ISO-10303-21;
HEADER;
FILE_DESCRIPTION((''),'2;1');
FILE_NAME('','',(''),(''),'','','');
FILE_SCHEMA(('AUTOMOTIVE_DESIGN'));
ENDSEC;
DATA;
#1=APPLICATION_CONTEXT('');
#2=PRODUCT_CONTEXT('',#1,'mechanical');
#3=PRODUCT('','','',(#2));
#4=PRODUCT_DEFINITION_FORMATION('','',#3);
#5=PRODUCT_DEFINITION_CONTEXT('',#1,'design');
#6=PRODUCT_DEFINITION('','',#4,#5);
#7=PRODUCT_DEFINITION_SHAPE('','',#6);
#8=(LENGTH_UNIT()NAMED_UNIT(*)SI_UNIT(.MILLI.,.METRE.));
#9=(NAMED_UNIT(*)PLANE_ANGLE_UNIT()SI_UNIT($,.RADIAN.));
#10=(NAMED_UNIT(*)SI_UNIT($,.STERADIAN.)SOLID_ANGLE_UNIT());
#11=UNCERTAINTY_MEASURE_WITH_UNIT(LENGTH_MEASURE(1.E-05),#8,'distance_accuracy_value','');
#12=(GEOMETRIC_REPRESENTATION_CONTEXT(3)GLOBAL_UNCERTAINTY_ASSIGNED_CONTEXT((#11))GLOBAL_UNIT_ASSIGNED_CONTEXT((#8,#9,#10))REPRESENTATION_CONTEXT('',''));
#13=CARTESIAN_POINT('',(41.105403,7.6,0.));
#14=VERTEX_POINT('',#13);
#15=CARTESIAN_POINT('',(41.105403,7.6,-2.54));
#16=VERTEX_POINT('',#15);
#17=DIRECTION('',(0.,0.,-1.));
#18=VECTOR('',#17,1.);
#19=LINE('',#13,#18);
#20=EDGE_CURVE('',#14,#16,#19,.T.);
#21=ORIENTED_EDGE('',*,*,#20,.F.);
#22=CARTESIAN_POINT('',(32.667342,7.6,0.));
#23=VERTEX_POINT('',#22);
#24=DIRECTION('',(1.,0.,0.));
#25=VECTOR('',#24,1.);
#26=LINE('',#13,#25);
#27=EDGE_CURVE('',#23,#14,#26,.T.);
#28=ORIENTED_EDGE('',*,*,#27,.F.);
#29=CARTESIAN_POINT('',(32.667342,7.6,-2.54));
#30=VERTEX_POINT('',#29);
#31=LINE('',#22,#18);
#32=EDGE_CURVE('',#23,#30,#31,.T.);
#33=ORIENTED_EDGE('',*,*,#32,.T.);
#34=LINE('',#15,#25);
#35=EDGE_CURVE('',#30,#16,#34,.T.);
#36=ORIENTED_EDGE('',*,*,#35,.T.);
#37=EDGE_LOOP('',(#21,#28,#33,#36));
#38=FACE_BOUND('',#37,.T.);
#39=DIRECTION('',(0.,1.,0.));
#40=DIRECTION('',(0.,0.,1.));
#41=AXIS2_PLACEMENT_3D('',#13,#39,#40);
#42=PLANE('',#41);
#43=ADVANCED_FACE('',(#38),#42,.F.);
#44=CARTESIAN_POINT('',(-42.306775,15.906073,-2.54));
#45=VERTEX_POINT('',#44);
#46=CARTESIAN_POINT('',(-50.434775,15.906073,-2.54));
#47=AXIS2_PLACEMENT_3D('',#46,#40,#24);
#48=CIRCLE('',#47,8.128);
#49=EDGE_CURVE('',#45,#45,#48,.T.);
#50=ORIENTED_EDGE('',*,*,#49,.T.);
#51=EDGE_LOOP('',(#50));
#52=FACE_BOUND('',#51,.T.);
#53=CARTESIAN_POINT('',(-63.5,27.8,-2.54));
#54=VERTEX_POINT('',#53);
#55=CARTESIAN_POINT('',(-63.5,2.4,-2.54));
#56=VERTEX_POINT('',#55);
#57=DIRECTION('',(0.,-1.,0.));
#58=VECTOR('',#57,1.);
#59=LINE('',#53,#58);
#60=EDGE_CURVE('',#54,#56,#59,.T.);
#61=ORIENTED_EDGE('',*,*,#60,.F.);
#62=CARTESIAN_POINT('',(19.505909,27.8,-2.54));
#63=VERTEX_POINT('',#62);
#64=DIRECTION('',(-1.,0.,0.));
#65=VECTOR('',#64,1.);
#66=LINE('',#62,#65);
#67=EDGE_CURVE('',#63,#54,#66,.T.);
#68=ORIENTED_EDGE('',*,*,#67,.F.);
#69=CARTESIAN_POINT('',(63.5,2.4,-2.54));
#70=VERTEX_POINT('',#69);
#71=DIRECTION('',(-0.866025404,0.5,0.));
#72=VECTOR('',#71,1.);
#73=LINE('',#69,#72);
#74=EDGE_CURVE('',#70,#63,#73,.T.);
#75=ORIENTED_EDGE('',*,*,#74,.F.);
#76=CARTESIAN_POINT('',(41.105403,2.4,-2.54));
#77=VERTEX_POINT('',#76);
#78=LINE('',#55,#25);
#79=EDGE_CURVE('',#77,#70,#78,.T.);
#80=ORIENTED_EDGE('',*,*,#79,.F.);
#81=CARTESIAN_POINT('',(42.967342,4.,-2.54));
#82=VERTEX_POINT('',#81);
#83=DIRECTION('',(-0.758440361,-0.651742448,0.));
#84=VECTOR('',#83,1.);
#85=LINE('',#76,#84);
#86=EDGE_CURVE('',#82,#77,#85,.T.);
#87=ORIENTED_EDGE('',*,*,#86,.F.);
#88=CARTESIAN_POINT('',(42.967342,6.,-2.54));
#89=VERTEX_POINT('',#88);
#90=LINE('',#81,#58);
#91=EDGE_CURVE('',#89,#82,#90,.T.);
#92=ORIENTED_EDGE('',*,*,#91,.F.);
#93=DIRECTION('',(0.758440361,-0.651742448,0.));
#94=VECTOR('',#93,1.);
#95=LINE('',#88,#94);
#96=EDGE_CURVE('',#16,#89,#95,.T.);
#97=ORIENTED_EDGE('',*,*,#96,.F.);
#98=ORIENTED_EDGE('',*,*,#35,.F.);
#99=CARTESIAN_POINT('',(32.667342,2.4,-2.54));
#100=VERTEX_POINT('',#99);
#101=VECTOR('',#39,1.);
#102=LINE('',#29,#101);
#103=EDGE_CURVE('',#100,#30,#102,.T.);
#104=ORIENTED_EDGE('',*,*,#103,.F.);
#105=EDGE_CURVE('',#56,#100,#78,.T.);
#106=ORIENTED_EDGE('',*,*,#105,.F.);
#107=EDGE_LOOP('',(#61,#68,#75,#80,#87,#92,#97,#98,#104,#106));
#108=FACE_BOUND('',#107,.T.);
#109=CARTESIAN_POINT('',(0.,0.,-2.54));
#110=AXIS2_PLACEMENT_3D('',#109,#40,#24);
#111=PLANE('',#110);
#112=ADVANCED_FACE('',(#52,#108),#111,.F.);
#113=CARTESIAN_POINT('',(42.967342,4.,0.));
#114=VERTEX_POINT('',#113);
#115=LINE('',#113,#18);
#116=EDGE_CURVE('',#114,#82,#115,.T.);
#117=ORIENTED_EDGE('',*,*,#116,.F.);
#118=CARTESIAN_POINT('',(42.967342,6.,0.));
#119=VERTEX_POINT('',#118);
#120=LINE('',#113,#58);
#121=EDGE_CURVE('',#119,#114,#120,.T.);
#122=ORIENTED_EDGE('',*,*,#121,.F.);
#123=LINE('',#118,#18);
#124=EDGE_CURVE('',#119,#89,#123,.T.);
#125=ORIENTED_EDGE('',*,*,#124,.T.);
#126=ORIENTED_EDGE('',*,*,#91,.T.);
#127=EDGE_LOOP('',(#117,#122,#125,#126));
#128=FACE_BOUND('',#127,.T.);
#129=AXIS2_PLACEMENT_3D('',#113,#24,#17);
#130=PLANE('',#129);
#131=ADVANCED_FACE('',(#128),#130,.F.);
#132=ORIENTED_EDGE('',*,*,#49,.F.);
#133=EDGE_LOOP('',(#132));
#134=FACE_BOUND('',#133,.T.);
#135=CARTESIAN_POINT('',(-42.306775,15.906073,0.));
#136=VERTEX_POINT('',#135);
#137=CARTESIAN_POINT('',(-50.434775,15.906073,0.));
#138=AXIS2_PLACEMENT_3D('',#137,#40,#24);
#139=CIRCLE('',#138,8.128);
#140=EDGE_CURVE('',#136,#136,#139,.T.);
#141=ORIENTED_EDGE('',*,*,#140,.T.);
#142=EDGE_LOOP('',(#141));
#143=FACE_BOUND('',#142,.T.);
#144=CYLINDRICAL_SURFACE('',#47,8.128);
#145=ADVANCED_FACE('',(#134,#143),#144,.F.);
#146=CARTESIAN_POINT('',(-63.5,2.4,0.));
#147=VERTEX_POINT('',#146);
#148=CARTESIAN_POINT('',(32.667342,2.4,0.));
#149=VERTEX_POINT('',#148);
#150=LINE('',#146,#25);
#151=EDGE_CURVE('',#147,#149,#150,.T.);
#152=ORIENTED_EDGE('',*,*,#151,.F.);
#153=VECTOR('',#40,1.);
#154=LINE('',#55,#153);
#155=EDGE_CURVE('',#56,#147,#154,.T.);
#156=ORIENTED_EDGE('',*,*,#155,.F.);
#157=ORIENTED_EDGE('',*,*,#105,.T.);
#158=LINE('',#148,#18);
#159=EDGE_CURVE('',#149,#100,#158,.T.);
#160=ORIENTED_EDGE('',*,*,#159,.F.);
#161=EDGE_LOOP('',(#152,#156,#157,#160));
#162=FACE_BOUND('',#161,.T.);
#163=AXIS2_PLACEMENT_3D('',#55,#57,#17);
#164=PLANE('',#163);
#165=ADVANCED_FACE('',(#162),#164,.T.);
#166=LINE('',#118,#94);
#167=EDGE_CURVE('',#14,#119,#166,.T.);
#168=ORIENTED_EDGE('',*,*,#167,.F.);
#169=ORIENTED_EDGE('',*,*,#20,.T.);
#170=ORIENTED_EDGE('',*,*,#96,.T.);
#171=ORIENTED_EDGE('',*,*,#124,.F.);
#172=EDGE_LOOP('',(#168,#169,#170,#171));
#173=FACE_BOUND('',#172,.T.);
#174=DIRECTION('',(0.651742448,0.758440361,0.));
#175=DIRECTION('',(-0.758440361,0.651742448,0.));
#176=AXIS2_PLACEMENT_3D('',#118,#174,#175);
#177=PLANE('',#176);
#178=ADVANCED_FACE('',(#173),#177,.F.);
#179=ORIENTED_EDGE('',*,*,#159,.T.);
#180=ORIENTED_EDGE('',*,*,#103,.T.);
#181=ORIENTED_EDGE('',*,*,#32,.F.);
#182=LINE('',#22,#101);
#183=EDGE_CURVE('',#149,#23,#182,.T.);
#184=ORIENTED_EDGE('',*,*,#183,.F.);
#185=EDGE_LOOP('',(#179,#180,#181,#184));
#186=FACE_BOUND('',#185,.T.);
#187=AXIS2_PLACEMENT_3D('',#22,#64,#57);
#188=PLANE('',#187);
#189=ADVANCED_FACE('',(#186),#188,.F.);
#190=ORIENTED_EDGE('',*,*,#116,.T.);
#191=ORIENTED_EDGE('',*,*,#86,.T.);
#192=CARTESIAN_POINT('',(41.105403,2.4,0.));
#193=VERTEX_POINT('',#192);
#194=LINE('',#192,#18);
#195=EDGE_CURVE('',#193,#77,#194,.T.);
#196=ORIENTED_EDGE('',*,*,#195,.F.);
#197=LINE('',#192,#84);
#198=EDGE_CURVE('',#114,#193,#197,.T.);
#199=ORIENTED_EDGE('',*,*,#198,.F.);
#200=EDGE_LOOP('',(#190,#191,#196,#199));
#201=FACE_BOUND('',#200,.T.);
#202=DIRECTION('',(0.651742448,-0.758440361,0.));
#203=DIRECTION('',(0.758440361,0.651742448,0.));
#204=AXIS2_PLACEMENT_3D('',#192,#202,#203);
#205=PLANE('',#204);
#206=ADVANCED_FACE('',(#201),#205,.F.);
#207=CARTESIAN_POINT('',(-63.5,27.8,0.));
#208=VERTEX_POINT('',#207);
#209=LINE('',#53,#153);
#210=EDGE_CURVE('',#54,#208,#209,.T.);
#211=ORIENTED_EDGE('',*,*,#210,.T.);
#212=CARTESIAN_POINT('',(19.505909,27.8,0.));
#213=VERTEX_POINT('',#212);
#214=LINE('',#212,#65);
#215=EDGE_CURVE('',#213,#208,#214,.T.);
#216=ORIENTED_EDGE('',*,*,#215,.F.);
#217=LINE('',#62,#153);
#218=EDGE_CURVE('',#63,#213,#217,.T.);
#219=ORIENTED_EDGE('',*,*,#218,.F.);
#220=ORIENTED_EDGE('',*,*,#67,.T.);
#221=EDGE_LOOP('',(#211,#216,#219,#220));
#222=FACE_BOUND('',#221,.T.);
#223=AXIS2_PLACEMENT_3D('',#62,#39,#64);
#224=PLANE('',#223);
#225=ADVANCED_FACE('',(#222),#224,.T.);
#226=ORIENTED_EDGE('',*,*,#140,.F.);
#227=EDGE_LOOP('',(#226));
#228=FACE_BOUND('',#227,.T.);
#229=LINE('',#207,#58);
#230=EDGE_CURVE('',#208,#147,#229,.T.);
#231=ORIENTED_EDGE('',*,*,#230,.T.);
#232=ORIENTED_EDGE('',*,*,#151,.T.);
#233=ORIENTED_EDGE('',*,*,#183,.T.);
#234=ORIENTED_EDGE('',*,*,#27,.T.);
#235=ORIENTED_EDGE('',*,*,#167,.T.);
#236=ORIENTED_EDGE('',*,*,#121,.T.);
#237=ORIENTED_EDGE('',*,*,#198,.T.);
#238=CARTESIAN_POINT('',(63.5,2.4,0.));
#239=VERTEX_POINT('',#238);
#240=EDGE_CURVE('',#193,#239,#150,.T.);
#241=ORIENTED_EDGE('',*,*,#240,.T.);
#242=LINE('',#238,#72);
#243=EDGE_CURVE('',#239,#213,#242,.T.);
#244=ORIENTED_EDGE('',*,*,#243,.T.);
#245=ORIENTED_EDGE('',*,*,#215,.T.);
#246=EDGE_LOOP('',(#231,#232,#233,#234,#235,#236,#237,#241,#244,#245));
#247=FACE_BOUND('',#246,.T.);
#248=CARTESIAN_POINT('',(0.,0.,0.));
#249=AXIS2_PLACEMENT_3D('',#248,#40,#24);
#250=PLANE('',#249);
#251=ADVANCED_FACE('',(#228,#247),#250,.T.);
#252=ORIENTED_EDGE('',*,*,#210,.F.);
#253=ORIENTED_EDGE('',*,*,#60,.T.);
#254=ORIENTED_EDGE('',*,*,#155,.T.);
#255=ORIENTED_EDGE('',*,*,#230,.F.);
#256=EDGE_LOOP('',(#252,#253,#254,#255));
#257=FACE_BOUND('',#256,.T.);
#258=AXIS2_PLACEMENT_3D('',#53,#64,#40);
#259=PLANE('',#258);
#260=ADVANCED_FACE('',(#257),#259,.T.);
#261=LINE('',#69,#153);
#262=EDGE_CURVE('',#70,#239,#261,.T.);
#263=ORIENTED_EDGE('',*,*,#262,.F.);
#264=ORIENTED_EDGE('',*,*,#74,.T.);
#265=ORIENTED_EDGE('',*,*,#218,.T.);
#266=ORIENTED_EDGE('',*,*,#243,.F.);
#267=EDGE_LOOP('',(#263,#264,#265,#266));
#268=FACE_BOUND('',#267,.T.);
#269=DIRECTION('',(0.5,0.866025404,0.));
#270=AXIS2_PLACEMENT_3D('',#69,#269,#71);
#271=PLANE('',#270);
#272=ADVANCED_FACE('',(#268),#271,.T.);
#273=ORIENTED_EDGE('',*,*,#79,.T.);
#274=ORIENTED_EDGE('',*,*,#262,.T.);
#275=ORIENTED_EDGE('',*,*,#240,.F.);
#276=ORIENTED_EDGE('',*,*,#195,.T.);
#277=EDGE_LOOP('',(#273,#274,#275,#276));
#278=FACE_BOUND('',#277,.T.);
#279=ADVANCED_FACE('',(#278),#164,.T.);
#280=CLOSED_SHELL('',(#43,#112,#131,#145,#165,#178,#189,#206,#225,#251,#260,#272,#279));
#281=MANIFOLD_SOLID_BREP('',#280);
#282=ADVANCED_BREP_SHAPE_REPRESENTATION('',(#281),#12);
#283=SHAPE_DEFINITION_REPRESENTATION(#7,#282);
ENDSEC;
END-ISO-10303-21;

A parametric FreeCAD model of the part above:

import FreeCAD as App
import Part
import Sketcher
from FreeCAD import Vector
Q = App.Units.Quantity


def add_polygon(sketch, points):
    """Adds a closed chain of lines whose ends are joined by coincident constraints."""
    first, n = sketch.GeometryCount, len(points)
    for a, b in zip(points, points[1:] + points[:1]):
        sketch.addGeometry(Part.LineSegment(App.Vector(*a, 0), App.Vector(*b, 0)), False)
    for i in range(n):
        sketch.addConstraint(Sketcher.Constraint("Coincident", first + i, 2, first + (i + 1) % n, 1))

doc = App.newDocument("Part")
body = doc.addObject("PartDesign::Body", "Body")

# Sketch on XY plane
sketch1 = doc.addObject("Sketcher::SketchObject", "Sketch")
body.addObject(sketch1)
sketch1.AttachmentSupport = (doc.XY_Plane, [""])
sketch1.MapMode = "FlatFace"
add_polygon(sketch1, [(-64, 2), (64, 2), (20, 28), (-64, 28)])  # lines 0-3
sketch1.addConstraint([
    Sketcher.Constraint("Horizontal", 0),
    Sketcher.Constraint("Horizontal", 2),
    Sketcher.Constraint("Vertical", 3),
    Sketcher.Constraint("DistanceX", 0, 1, 0, 2, Q("5 in")),
    Sketcher.Constraint("DistanceY", 3, 2, 3, 1, Q("1 in")),
    Sketcher.Constraint("Distance", 1, Q("2 in")),
    Sketcher.Constraint("DistanceX", -1, 1, 0, 2, Q("2.5 in")),
    Sketcher.Constraint("DistanceY", -1, 1, 0, 2, Q("2.4 mm")),
])
pad1 = doc.addObject("PartDesign::Pad", "Pad")
body.addObject(pad1)
pad1.Profile = sketch1
pad1.Length = Q("0.1 in")
pad1.Reversed = True

# Sketch on XY plane
sketch2 = doc.addObject("Sketcher::SketchObject", "Sketch001")
body.addObject(sketch2)
sketch2.AttachmentSupport = (doc.XY_Plane, [""])
sketch2.MapMode = "FlatFace"
sketch2.addGeometry(Part.Circle(Vector(-50, 16, 0), Vector(0, 0, 1), 8), False)
sketch2.addConstraint([
    Sketcher.Constraint("Diameter", 0, Q("0.64 in")),
    Sketcher.Constraint("DistanceX", 0, 3, -1, 1, Q("50.434775 mm")),
    Sketcher.Constraint("DistanceY", -1, 1, 0, 3, Q("15.906073 mm")),
])
pocket1 = doc.addObject("PartDesign::Pocket", "Pocket")
body.addObject(pocket1)
pocket1.Profile = sketch2
pocket1.Length = Q("0.1 in")

# Sketch on XY plane
sketch3 = doc.addObject("Sketcher::SketchObject", "Sketch002")
body.addObject(sketch3)
sketch3.AttachmentSupport = (doc.XY_Plane, [""])
sketch3.MapMode = "FlatFace"
sketch3.AttachmentOffset = App.Placement(Vector(0, 0, -0.1 * 25.4), App.Rotation())
add_polygon(sketch3, [(32.7, 7.6), (41.1, 7.6), (43, 6), (43, 4), (41.1, 2.4), (32.7, 2.4)])  # lines 0-5
sketch3.addConstraint([
    Sketcher.Constraint("Horizontal", 0),
    Sketcher.Constraint("Vertical", 2),
    Sketcher.Constraint("Horizontal", 4),
    Sketcher.Constraint("Vertical", 5),
    Sketcher.Constraint("Vertical", 0, 2, 3, 2),
    Sketcher.Constraint("Equal", 1, 3),
    Sketcher.Constraint("DistanceY", 2, 2, 2, 1, Q("2 mm")),
    Sketcher.Constraint("DistanceY", 5, 1, 5, 2, Q("5.2 mm")),
    Sketcher.Constraint("DistanceX", 0, 1, 0, 2, Q("8.438061 mm")),
    Sketcher.Constraint("DistanceY", -1, 1, 0, 2, Q("7.6 mm")),
    Sketcher.Constraint("DistanceX", 4, 2, 2, 2, Q("10.3 mm")),
    Sketcher.Constraint("DistanceX", -1, 1, 0, 2, Q("41.105403 mm")),
])
pocket2 = doc.addObject("PartDesign::Pocket", "Pocket001")
body.addObject(pocket2)
pocket2.Profile = sketch3
pocket2.Type = "ThroughAll"
pocket2.Reversed = True

doc.recompute()
